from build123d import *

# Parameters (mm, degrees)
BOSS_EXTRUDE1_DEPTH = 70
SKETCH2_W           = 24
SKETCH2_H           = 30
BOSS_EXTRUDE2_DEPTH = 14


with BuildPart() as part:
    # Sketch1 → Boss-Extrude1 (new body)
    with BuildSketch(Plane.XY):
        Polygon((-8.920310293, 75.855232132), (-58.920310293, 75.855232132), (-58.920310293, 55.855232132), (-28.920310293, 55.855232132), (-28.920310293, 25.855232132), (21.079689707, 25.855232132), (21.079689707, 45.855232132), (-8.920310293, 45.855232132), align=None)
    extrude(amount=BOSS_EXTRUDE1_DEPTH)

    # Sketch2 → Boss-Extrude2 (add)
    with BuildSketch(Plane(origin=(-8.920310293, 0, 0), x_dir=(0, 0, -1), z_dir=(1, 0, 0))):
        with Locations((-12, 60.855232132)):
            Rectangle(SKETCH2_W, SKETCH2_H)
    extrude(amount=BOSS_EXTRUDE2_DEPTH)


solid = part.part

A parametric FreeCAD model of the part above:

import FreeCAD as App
import Part
import Sketcher
Q = App.Units.Quantity


def add_polygon(sketch, points):
    """Adds a closed chain of lines whose ends are joined by coincident constraints."""
    first, n = sketch.GeometryCount, len(points)
    for a, b in zip(points, points[1:] + points[:1]):
        sketch.addGeometry(Part.LineSegment(App.Vector(*a, 0), App.Vector(*b, 0)), False)
    for i in range(n):
        sketch.addConstraint(Sketcher.Constraint("Coincident", first + i, 2, first + (i + 1) % n, 1))

doc = App.newDocument("Part")
body = doc.addObject("PartDesign::Body", "Body")

sketch1 = body.newObject("Sketcher::SketchObject", "Sketch")
sketch1.AttachmentSupport = (doc.getObject("XY_Plane"), [""])
sketch1.MapMode = "FlatFace"
add_polygon(sketch1, [(-8.92031, 75.855232), (-58.92031, 75.855232), (-58.92031, 55.855232), (-28.92031, 55.855232), (-28.92031, 25.855232), (21.07969, 25.855232), (21.07969, 45.855232), (-8.92031, 45.855232)])
sketch1.addConstraint(Sketcher.Constraint("Horizontal", 0))
sketch1.addConstraint(Sketcher.Constraint("Vertical", 1))
sketch1.addConstraint(Sketcher.Constraint("Horizontal", 2))
sketch1.addConstraint(Sketcher.Constraint("Vertical", 3))
sketch1.addConstraint(Sketcher.Constraint("Horizontal", 4))
sketch1.addConstraint(Sketcher.Constraint("Vertical", 5))
sketch1.addConstraint(Sketcher.Constraint("Horizontal", 6))
sketch1.addConstraint(Sketcher.Constraint("Vertical", 7))
sketch1.addConstraint(Sketcher.Constraint("Equal", 0, 4))
sketch1.addConstraint(Sketcher.Constraint("Equal", 6, 3))
sketch1.addConstraint(Sketcher.Constraint("Equal", 1, 5))
sketch1.addConstraint(Sketcher.Constraint("DistanceX", 0, 2, 0, 1, Q("50 mm")))
sketch1.addConstraint(Sketcher.Constraint("DistanceX", 2, 1, 2, 2, Q("30 mm")))
sketch1.addConstraint(Sketcher.Constraint("DistanceY", 1, 2, 1, 1, Q("20 mm")))
sketch1.addConstraint(Sketcher.Constraint("DistanceX", 0, 2, -1, 1, Q("58.92031 mm")))
sketch1.addConstraint(Sketcher.Constraint("DistanceY", -1, 1, 0, 2, Q("75.855232 mm")))
pad1 = body.newObject("PartDesign::Pad", "Pad")
pad1.Profile = sketch1
pad1.Length = 70

sketch2 = body.newObject("Sketcher::SketchObject", "Sketch001")
sketch2.AttachmentSupport = (doc.getObject("YZ_Plane"), [""])
sketch2.MapMode = "FlatFace"
sketch2.AttachmentOffset = App.Placement(App.Vector(0, 0, -8.92031), App.Rotation())
add_polygon(sketch2, [(75.855232, 24), (45.855232, 24), (45.855232, 0), (75.855232, 0)])
sketch2.addConstraint(Sketcher.Constraint("Horizontal", 0))
sketch2.addConstraint(Sketcher.Constraint("Vertical", 1))
sketch2.addConstraint(Sketcher.Constraint("Horizontal", 2))
sketch2.addConstraint(Sketcher.Constraint("Vertical", 3))
sketch2.addConstraint(Sketcher.Constraint("PointOnObject", 1, 2, -1))
sketch2.addConstraint(Sketcher.Constraint("DistanceX", 0, 2, 0, 1, Q("30 mm")))
sketch2.addConstraint(Sketcher.Constraint("DistanceY", 1, 2, 1, 1, Q("24 mm")))
sketch2.addConstraint(Sketcher.Constraint("DistanceX", -1, 1, 0, 2, Q("45.855232 mm")))
pad2 = body.newObject("PartDesign::Pad", "Pad001")
pad2.Profile = sketch2
pad2.Length = 14

doc.recompute()
